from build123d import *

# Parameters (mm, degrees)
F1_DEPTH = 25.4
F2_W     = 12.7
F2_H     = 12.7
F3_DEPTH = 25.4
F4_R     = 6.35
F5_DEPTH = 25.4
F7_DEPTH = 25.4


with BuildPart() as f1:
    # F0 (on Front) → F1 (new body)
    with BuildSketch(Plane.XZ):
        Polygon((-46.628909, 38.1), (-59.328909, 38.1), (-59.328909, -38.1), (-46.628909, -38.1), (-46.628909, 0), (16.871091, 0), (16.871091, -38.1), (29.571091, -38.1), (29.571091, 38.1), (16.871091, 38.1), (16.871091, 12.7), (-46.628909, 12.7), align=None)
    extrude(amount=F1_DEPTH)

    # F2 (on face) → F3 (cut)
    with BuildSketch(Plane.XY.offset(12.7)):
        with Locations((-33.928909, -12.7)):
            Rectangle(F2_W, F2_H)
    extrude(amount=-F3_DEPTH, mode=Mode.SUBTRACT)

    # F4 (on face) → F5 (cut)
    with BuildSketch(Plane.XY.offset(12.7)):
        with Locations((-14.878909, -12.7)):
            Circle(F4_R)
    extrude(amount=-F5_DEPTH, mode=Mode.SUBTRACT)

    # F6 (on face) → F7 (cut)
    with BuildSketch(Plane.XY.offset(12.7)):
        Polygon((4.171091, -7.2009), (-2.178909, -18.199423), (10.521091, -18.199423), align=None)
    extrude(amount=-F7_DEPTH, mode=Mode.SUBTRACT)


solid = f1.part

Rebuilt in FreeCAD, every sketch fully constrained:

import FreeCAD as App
import Part
import Sketcher

V = App.Vector
Q = App.Units.Quantity


def add_polygon(sketch, points):
    """Adds a closed chain of lines whose ends are joined by coincident constraints."""
    first, n = sketch.GeometryCount, len(points)
    for a, b in zip(points, points[1:] + points[:1]):
        sketch.addGeometry(Part.LineSegment(App.Vector(*a, 0), App.Vector(*b, 0)), False)
    for i in range(n):
        sketch.addConstraint(Sketcher.Constraint("Coincident", first + i, 2, first + (i + 1) % n, 1))

doc = App.newDocument("Part")
body = doc.addObject("PartDesign::Body", "Body")

# Sketch on XZ plane
sketch1 = doc.addObject("Sketcher::SketchObject", "Sketch")
body.addObject(sketch1)
sketch1.AttachmentSupport = (doc.XZ_Plane, [""])
sketch1.MapMode = "FlatFace"
add_polygon(sketch1, [(-46.628909, 38.1), (-59.328909, 38.1), (-59.328909, -38.1), (-46.628909, -38.1), (-46.628909, 0), (16.871091, 0), (16.871091, -38.1), (29.571091, -38.1), (29.571091, 38.1), (16.871091, 38.1), (16.871091, 12.7), (-46.628909, 12.7)])  # lines 0-11
sketch1.addConstraint([
    Sketcher.Constraint("Horizontal", 0),
    Sketcher.Constraint("Vertical", 1),
    Sketcher.Constraint("Horizontal", 2),
    Sketcher.Constraint("Vertical", 3),
    Sketcher.Constraint("Horizontal", 4),
    Sketcher.Constraint("Vertical", 5),
    Sketcher.Constraint("Horizontal", 6),
    Sketcher.Constraint("Vertical", 7),
    Sketcher.Constraint("Horizontal", 8),
    Sketcher.Constraint("Vertical", 9),
    Sketcher.Constraint("Horizontal", 10),
    Sketcher.Constraint("Vertical", 11),
    Sketcher.Constraint("Symmetric", 5, 2, 8, 2, -1),
    Sketcher.Constraint("Symmetric", 2, 2, 11, 2, -1),
    Sketcher.Constraint("PointOnObject", 3, 2, -1),
    Sketcher.Constraint("Horizontal", 2, 2, 5, 2),
    Sketcher.Constraint("Equal", 2, 6),
    Sketcher.Constraint("DistanceY", 1, 2, 1, 1, Q("3 in")),
    Sketcher.Constraint("DistanceY", 9, 2, 9, 1, Q("1 in")),
    Sketcher.Constraint("DistanceX", 0, 2, 0, 1, Q("0.5 in")),
    Sketcher.Constraint("DistanceX", 4, 1, 4, 2, Q("2.5 in")),
    Sketcher.Constraint("DistanceX", 0, 2, -1, 1, 59.328909),
])
pad1 = doc.addObject("PartDesign::Pad", "Pad")
body.addObject(pad1)
pad1.Profile = sketch1
pad1.Length = Q("1 in")

# Sketch on XY plane
sketch2 = doc.addObject("Sketcher::SketchObject", "Sketch001")
body.addObject(sketch2)
sketch2.AttachmentSupport = (doc.XY_Plane, [""])
sketch2.MapMode = "FlatFace"
sketch2.AttachmentOffset = App.Placement(V(0, 0, 0.5 * 25.4), App.Rotation())
add_polygon(sketch2, [(-40.278909, -6.35), (-40.278909, -19.05), (-27.578909, -19.05), (-27.578909, -6.35)])  # lines 0-3
sketch2.addConstraint([
    Sketcher.Constraint("Vertical", 0),
    Sketcher.Constraint("Horizontal", 1),
    Sketcher.Constraint("Vertical", 2),
    Sketcher.Constraint("Horizontal", 3),
    Sketcher.Constraint("Equal", 3, 0),
    Sketcher.Constraint("DistanceX", 1, 1, 1, 2, Q("0.5 in")),
    Sketcher.Constraint("DistanceY", 0, 2, -1, 1, Q("0.75 in")),
    Sketcher.Constraint("DistanceX", 0, 2, -1, 1, 40.278909),
])
pocket1 = doc.addObject("PartDesign::Pocket", "Pocket")
body.addObject(pocket1)
pocket1.Profile = sketch2
pocket1.Length = Q("1 in")

# Sketch on XY plane
sketch3 = doc.addObject("Sketcher::SketchObject", "Sketch002")
body.addObject(sketch3)
sketch3.AttachmentSupport = (doc.XY_Plane, [""])
sketch3.MapMode = "FlatFace"
sketch3.AttachmentOffset = App.Placement(V(0, 0, 0.5 * 25.4), App.Rotation())
sketch3.addGeometry(Part.Circle(V(-14.878909, -12.7, 0), V(0, 0, 1), 6.35), False)
sketch3.addConstraint([
    Sketcher.Constraint("Diameter", 0, Q("0.5 in")),
    Sketcher.Constraint("DistanceY", 0, 3, -1, 1, Q("0.5 in")),
    Sketcher.Constraint("DistanceX", 0, 3, -1, 1, 14.878909),
])
pocket2 = doc.addObject("PartDesign::Pocket", "Pocket001")
body.addObject(pocket2)
pocket2.Profile = sketch3
pocket2.Length = Q("1 in")

# Sketch on XY plane
sketch4 = doc.addObject("Sketcher::SketchObject", "Sketch003")
body.addObject(sketch4)
sketch4.AttachmentSupport = (doc.XY_Plane, [""])
sketch4.MapMode = "FlatFace"
sketch4.AttachmentOffset = App.Placement(V(0, 0, 0.5 * 25.4), App.Rotation())
add_polygon(sketch4, [(4.171091, -7.2009), (-2.178909, -18.199423), (10.521091, -18.199423)])  # lines 0-2
sketch4.addConstraint([
    Sketcher.Constraint("Horizontal", 1),
    Sketcher.Constraint("Equal", 0, 2),
    Sketcher.Constraint("DistanceX", 1, 1, 1, 2, Q("0.5 in")),
    Sketcher.Constraint("Angle", 0, Q("-119.999999 deg")),
    Sketcher.Constraint("DistanceY", 2, 2, -1, 1, Q("0.2835 in")),
    Sketcher.Constraint("DistanceX", 0, 2, -1, 1, 2.178909),
])
pocket3 = doc.addObject("PartDesign::Pocket", "Pocket002")
body.addObject(pocket3)
pocket3.Profile = sketch4
pocket3.Length = Q("1 in")

doc.recompute()
